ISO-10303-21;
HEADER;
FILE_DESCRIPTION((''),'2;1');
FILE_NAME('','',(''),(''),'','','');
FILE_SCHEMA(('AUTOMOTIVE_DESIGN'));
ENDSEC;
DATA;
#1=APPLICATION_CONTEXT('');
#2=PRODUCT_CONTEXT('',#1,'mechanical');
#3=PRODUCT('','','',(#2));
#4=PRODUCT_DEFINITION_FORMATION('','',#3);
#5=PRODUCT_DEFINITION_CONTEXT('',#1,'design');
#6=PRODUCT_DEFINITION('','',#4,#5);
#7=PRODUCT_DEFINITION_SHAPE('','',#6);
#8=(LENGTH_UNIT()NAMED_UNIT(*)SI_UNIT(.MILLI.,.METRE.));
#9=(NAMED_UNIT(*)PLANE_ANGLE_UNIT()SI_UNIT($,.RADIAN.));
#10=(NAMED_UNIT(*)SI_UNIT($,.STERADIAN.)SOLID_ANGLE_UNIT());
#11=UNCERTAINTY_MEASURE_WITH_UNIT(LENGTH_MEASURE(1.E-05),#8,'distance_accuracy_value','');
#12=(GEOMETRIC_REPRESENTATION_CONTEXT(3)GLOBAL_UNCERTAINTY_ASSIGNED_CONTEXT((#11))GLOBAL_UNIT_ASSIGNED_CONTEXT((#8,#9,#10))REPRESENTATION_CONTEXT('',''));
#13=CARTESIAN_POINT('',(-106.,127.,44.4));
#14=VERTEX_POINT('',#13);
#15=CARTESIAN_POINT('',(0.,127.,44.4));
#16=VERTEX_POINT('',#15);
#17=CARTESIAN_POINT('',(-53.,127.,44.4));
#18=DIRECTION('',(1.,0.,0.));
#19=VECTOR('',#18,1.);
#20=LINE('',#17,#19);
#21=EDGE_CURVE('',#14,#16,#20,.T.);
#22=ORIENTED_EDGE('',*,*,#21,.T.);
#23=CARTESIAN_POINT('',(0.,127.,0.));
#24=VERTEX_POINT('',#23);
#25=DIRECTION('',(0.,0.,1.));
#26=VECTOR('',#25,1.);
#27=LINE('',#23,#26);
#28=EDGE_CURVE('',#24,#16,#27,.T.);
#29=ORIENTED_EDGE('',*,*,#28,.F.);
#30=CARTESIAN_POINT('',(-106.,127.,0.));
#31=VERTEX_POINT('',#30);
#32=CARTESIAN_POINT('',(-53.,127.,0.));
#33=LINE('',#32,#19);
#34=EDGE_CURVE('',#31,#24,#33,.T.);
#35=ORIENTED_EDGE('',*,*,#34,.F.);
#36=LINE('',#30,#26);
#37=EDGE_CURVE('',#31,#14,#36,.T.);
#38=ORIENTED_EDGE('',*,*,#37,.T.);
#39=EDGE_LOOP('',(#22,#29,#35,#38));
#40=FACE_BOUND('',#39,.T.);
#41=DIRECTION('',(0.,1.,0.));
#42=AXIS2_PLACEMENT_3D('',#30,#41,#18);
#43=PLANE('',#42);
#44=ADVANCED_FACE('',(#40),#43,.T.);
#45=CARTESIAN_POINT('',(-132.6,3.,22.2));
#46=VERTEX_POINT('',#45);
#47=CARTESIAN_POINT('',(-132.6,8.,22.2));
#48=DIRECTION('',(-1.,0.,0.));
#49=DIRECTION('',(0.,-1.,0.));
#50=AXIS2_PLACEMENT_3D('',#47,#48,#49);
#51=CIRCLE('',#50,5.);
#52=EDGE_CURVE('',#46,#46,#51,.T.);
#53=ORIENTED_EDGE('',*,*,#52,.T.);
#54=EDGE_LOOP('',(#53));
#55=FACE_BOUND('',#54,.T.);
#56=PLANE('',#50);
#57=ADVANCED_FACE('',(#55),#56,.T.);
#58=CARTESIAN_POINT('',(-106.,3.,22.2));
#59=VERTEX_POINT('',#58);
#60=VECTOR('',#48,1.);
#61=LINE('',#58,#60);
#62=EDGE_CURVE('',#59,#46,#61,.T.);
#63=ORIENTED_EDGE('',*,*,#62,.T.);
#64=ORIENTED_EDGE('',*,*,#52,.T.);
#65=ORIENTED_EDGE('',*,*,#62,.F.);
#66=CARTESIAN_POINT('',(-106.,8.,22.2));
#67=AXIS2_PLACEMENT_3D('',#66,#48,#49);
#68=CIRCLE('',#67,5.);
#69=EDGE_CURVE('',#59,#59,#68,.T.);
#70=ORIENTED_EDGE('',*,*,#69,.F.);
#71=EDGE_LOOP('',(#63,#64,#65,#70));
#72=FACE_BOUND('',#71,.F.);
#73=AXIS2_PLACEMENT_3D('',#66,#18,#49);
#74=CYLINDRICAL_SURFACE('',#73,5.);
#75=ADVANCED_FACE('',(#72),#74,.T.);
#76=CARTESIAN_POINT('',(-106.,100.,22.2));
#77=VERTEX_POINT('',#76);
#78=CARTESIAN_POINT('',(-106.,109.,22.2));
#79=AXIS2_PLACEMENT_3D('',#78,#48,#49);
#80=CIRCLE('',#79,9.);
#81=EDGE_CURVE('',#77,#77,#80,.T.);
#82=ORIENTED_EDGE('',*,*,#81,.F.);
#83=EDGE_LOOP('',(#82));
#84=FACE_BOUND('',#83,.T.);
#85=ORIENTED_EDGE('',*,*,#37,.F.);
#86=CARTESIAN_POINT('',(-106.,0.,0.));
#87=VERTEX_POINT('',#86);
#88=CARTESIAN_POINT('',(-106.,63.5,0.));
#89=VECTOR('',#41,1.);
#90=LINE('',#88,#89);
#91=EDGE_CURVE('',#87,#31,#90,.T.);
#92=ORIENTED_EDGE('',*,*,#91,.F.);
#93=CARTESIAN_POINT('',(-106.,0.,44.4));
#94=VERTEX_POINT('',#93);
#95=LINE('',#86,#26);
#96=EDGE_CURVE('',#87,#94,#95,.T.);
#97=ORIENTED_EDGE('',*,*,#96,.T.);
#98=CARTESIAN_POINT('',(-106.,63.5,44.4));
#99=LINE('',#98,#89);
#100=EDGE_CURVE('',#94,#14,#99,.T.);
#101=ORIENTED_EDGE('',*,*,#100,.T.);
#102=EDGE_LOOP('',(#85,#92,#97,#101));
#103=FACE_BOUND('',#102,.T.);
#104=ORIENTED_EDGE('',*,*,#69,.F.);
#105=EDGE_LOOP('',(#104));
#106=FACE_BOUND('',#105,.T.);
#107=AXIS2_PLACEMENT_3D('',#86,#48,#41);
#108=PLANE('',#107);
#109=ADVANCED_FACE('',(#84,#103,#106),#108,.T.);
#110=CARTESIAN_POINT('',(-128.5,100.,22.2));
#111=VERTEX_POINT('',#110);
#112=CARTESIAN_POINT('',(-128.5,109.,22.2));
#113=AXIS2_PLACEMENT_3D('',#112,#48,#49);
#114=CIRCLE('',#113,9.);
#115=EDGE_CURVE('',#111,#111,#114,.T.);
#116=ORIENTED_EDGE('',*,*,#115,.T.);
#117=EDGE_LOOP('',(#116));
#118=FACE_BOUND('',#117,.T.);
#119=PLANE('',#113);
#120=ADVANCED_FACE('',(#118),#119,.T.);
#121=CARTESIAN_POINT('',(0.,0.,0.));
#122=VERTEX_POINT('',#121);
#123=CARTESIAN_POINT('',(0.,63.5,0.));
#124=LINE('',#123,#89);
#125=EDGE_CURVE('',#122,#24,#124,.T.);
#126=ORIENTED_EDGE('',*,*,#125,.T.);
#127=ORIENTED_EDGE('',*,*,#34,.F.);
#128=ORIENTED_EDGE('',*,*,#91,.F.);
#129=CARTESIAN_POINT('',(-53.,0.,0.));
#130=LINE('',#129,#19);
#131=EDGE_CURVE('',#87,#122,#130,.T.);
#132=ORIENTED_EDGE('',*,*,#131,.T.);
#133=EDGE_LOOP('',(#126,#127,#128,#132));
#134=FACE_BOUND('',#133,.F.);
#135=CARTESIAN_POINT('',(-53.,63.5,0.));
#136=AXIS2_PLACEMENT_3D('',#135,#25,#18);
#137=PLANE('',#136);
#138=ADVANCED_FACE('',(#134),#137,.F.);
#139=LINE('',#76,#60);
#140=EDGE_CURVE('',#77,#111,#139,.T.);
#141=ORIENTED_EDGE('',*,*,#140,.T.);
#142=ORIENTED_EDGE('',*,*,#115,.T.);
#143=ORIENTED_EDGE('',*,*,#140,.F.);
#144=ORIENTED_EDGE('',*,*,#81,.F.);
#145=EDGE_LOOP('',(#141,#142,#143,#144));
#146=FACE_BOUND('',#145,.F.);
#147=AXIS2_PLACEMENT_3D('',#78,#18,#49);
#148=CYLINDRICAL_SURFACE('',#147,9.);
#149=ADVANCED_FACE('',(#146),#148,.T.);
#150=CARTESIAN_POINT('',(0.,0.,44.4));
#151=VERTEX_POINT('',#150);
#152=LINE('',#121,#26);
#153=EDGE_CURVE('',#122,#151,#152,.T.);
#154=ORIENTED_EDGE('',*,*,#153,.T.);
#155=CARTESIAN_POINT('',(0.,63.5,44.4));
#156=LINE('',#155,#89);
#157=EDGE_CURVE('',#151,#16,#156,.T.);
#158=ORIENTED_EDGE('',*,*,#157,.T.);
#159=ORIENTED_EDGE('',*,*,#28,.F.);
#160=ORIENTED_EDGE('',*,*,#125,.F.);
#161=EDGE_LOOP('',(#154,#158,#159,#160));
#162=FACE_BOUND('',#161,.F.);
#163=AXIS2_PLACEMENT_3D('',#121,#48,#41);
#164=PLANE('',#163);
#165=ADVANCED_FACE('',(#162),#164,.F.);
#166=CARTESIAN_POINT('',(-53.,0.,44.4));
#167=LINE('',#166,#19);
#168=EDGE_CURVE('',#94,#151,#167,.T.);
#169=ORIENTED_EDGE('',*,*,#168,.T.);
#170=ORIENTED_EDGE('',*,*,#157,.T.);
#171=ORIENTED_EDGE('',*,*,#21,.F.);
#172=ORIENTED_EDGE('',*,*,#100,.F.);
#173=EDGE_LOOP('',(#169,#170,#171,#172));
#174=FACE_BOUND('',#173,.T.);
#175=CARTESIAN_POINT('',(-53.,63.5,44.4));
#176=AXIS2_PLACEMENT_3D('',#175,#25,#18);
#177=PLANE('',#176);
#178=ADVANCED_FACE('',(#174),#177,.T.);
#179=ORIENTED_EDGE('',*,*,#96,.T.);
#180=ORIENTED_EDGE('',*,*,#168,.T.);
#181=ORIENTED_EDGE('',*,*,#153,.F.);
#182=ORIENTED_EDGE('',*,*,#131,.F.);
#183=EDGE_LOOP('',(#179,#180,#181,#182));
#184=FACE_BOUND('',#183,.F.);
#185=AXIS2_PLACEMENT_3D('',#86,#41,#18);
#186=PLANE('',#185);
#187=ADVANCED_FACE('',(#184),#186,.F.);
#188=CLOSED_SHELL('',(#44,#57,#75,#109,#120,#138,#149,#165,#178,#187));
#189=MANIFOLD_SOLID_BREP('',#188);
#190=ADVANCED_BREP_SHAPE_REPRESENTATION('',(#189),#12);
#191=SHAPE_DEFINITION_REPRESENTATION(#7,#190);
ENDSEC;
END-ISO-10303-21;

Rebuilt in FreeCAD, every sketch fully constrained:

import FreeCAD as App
import Part
import Sketcher

V = App.Vector


def add_polygon(sketch, points):
    """Adds a closed chain of lines whose ends are joined by coincident constraints."""
    first, n = sketch.GeometryCount, len(points)
    for a, b in zip(points, points[1:] + points[:1]):
        sketch.addGeometry(Part.LineSegment(App.Vector(*a, 0), App.Vector(*b, 0)), False)
    for i in range(n):
        sketch.addConstraint(Sketcher.Constraint("Coincident", first + i, 2, first + (i + 1) % n, 1))

doc = App.newDocument("Part")
body = doc.addObject("PartDesign::Body", "Body")

# Sketch on XY plane
sketch1 = body.newObject("Sketcher::SketchObject", "Sketch")
sketch1.AttachmentSupport = (doc.getObject("XY_Plane"), [""])
sketch1.MapMode = "FlatFace"
add_polygon(sketch1, [(-106, 127), (-106, 0), (0, 0), (0, 127)])  # lines 0-3
sketch1.addConstraint([
    Sketcher.Constraint("Vertical", 0),
    Sketcher.Constraint("Horizontal", 1),
    Sketcher.Constraint("Vertical", 2),
    Sketcher.Constraint("Horizontal", 3),
    Sketcher.Constraint("Coincident", 1, 2, -1, 1),
    Sketcher.Constraint("DistanceX", 1, 1, 1, 2, 106.0),
    Sketcher.Constraint("DistanceY", 0, 2, 0, 1, 127.0),
])
pad1 = body.newObject("PartDesign::Pad", "Pad")
pad1.Profile = sketch1
pad1.Length = 44.4

# Sketch on YZ plane
sketch2 = body.newObject("Sketcher::SketchObject", "Sketch001")
sketch2.AttachmentSupport = (doc.getObject("YZ_Plane"), [""])
sketch2.MapMode = "FlatFace"
sketch2.AttachmentOffset = App.Placement(V(0, 0, -106), App.Rotation())
sketch2.addGeometry(Part.Circle(V(109, 22, 0), V(0, 0, 1), 9), False)
sketch2.addConstraint([
    Sketcher.Constraint("Diameter", 0, 18.0),
    Sketcher.Constraint("DistanceX", -1, 1, 0, 3, 109.0),
    Sketcher.Constraint("DistanceY", -1, 1, 0, 3, 22.2),
])
pad2 = body.newObject("PartDesign::Pad", "Pad001")
pad2.Profile = sketch2
pad2.Length = 22.5
pad2.Reversed = True

# Sketch on YZ plane
sketch3 = body.newObject("Sketcher::SketchObject", "Sketch002")
sketch3.AttachmentSupport = (doc.getObject("YZ_Plane"), [""])
sketch3.MapMode = "FlatFace"
sketch3.AttachmentOffset = App.Placement(V(0, 0, -106), App.Rotation())
sketch3.addGeometry(Part.Circle(V(8, 22, 0), V(0, 0, 1), 5), False)
sketch3.addConstraint([
    Sketcher.Constraint("Diameter", 0, 10.0),
    Sketcher.Constraint("DistanceX", -1, 1, 0, 3, 8.0),
    Sketcher.Constraint("DistanceY", -1, 1, 0, 3, 22.2),
])
pad3 = body.newObject("PartDesign::Pad", "Pad002")
pad3.Profile = sketch3
pad3.Length = 26.6
pad3.Reversed = True

doc.recompute()
